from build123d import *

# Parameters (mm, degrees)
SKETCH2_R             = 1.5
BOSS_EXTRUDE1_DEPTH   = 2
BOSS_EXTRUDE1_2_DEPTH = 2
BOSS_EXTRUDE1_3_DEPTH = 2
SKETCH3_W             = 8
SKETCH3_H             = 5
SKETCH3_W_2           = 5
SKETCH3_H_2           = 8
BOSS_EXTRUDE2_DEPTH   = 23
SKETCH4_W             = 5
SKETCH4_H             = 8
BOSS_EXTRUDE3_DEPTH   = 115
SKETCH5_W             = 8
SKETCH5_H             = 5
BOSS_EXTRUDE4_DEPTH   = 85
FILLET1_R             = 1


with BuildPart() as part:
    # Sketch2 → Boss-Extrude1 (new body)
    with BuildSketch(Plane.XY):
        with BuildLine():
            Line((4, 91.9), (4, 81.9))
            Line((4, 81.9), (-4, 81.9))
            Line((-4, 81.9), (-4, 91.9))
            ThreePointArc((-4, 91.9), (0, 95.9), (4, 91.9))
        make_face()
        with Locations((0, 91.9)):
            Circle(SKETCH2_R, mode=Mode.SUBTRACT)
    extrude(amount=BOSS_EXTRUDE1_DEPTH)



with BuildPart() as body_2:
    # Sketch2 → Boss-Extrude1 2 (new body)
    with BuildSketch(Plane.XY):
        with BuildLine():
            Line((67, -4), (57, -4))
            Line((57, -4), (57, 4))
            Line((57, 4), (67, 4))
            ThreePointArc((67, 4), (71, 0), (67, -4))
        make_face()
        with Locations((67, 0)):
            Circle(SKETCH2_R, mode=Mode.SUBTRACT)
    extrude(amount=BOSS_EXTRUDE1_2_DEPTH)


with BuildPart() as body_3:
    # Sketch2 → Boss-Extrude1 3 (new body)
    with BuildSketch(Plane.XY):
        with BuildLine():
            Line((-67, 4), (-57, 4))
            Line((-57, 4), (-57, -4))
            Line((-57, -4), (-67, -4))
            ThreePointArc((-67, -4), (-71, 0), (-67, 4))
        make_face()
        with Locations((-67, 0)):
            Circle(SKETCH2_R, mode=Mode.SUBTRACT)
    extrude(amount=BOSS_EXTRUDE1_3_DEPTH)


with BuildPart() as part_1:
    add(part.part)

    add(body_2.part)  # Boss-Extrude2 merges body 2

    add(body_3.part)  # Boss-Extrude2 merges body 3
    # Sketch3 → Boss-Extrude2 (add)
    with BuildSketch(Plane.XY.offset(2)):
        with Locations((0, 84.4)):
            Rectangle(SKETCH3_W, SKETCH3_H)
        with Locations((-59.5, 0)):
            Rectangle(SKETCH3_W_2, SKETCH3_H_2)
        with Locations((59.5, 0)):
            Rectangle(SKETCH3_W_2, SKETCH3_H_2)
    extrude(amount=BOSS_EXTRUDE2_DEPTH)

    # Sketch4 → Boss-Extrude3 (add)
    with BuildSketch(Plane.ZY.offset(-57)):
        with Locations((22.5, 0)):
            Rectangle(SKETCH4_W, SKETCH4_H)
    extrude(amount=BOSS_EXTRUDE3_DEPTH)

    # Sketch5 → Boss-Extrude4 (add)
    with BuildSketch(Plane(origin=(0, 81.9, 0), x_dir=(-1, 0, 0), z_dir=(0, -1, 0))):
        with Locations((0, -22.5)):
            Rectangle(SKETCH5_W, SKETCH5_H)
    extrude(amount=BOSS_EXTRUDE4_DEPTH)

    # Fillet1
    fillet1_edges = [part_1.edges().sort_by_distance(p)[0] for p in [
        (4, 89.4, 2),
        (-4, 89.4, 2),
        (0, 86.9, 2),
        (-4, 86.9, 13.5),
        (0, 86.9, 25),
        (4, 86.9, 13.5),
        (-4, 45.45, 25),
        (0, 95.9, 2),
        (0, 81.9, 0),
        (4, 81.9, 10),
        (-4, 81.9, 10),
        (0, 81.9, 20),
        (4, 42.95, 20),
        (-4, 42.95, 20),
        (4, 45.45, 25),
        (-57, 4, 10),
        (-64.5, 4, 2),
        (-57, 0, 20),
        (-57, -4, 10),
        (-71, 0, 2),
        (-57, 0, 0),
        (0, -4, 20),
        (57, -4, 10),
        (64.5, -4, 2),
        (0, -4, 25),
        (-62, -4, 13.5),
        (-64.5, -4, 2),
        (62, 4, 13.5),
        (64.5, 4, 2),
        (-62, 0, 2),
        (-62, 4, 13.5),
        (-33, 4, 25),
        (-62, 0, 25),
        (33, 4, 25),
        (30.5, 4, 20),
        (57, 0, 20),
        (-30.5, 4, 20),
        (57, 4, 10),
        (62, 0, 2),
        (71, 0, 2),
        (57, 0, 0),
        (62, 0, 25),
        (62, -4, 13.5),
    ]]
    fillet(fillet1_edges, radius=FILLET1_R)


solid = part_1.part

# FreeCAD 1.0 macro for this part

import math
import FreeCAD as App
import Part
import Sketcher
from FreeCAD import Vector


def edges_at(feature, points):
    """Names of the edges that pass closest to the given points."""
    edges = feature.Shape.Edges
    near = lambda p: min(range(len(edges)), key=lambda i: edges[i].distToShape(Part.Vertex(*p))[0])
    return sorted({f"Edge{near(p) + 1}" for p in points})

doc = App.newDocument("Part")
body = doc.addObject("PartDesign::Body", "Body")

# Sketch on XY plane
sketch1 = body.newObject("Sketcher::SketchObject", "Sketch")
sketch1.AttachmentSupport = (doc.getObject("XY_Plane"), [""])
sketch1.MapMode = "FlatFace"
sketch1.addGeometry([
    Part.LineSegment(Vector(4, 81.9, 0), Vector(4, 91.9, 0)),  # 0
    Part.ArcOfCircle(Part.Circle(Vector(0, 91.9, 0), Vector(0, 0, 1), 4), math.radians(0), math.radians(180)),  # 1
    Part.LineSegment(Vector(-4, 91.9, 0), Vector(-4, 81.9, 0)),  # 2
    Part.LineSegment(Vector(-4, 81.9, 0), Vector(4, 81.9, 0)),  # 3
    Part.Circle(Vector(0, 91.9, 0), Vector(0, 0, 1), 1.5),  # 4
], False)
sketch1.addConstraint([
    Sketcher.Constraint("Tangent", 0, 2, 1, 1),
    Sketcher.Constraint("Tangent", 1, 2, 2, 1),
    Sketcher.Constraint("Coincident", 2, 2, 3, 1),
    Sketcher.Constraint("Coincident", 3, 2, 0, 1),
    Sketcher.Constraint("Vertical", 0),
    Sketcher.Constraint("Vertical", 2),
    Sketcher.Constraint("Horizontal", 3),
    Sketcher.Constraint("Coincident", 4, 3, 1, 3),
    Sketcher.Constraint("PointOnObject", 1, 3, -2),
    Sketcher.Constraint("Diameter", 4, 3.0),
    Sketcher.Constraint("Radius", 1, 4.0),
    Sketcher.Constraint("DistanceY", 0, 1, 0, 2, 10.0),
    Sketcher.Constraint("DistanceY", -1, 1, 1, 3, 91.9),
])
pad1 = body.newObject("PartDesign::Pad", "Pad")
pad1.Profile = sketch1
pad1.Length = 2
body2 = doc.addObject("PartDesign::Body", "Body001")

# Sketch on XY plane
sketch2 = body2.newObject("Sketcher::SketchObject", "Sketch001")
sketch2.AttachmentSupport = (doc.getObject("XY_Plane001"), [""])
sketch2.MapMode = "FlatFace"
sketch2.addGeometry([
    Part.LineSegment(Vector(57, -4, 0), Vector(67, -4, 0)),  # 0
    Part.ArcOfCircle(Part.Circle(Vector(67, 0, 0), Vector(0, 0, 1), 4), math.radians(-90), math.radians(90)),  # 1
    Part.LineSegment(Vector(67, 4, 0), Vector(57, 4, 0)),  # 2
    Part.LineSegment(Vector(57, 4, 0), Vector(57, -4, 0)),  # 3
    Part.Circle(Vector(67, 0, 0), Vector(0, 0, 1), 1.5),  # 4
], False)
sketch2.addConstraint([
    Sketcher.Constraint("Tangent", 0, 2, 1, 1),
    Sketcher.Constraint("Tangent", 1, 2, 2, 1),
    Sketcher.Constraint("Coincident", 2, 2, 3, 1),
    Sketcher.Constraint("Coincident", 3, 2, 0, 1),
    Sketcher.Constraint("Horizontal", 0),
    Sketcher.Constraint("Horizontal", 2),
    Sketcher.Constraint("Vertical", 3),
    Sketcher.Constraint("Coincident", 4, 3, 1, 3),
    Sketcher.Constraint("PointOnObject", 1, 3, -1),
    Sketcher.Constraint("Diameter", 4, 3.0),
    Sketcher.Constraint("Radius", 1, 4.0),
    Sketcher.Constraint("DistanceX", 0, 1, 0, 2, 10.0),
    Sketcher.Constraint("DistanceX", -1, 1, 1, 3, 67.0),
])
pad2 = body2.newObject("PartDesign::Pad", "Pad001")
pad2.Profile = sketch2
pad2.Length = 2
body3 = doc.addObject("PartDesign::Body", "Body002")

# Sketch on XY plane
sketch3 = body3.newObject("Sketcher::SketchObject", "Sketch002")
sketch3.AttachmentSupport = (doc.getObject("XY_Plane002"), [""])
sketch3.MapMode = "FlatFace"
sketch3.addGeometry([
    Part.LineSegment(Vector(-57, 4, 0), Vector(-67, 4, 0)),  # 0
    Part.ArcOfCircle(Part.Circle(Vector(-67, 0, 0), Vector(0, 0, 1), 4), math.radians(90), math.radians(270)),  # 1
    Part.LineSegment(Vector(-67, -4, 0), Vector(-57, -4, 0)),  # 2
    Part.LineSegment(Vector(-57, -4, 0), Vector(-57, 4, 0)),  # 3
    Part.Circle(Vector(-67, 0, 0), Vector(0, 0, 1), 1.5),  # 4
], False)
sketch3.addConstraint([
    Sketcher.Constraint("Tangent", 0, 2, 1, 1),
    Sketcher.Constraint("Tangent", 1, 2, 2, 1),
    Sketcher.Constraint("Coincident", 2, 2, 3, 1),
    Sketcher.Constraint("Coincident", 3, 2, 0, 1),
    Sketcher.Constraint("Horizontal", 0),
    Sketcher.Constraint("Horizontal", 2),
    Sketcher.Constraint("Vertical", 3),
    Sketcher.Constraint("Coincident", 4, 3, 1, 3),
    Sketcher.Constraint("PointOnObject", 1, 3, -1),
    Sketcher.Constraint("Diameter", 4, 3.0),
    Sketcher.Constraint("Radius", 1, 4.0),
    Sketcher.Constraint("DistanceX", 0, 2, 0, 1, 10.0),
    Sketcher.Constraint("DistanceX", 1, 3, -1, 1, 67.0),
])
pad3 = body3.newObject("PartDesign::Pad", "Pad002")
pad3.Profile = sketch3
pad3.Length = 2
body.AllowCompound = True
doc.recompute()

boolean = body.newObject("PartDesign::Boolean", "Boolean")
boolean.Type = "Fuse"
boolean.addObjects([body2])
doc.recompute()

boolean2 = body.newObject("PartDesign::Boolean", "Boolean001")
boolean2.Type = "Fuse"
boolean2.addObjects([body3])

# Sketch on XY plane
sketch4 = body.newObject("Sketcher::SketchObject", "Sketch003")
sketch4.AttachmentSupport = (doc.getObject("XY_Plane"), [""])
sketch4.MapMode = "FlatFace"
sketch4.AttachmentOffset = App.Placement(Vector(0, 0, 2), App.Rotation())
sketch4.addGeometry([
    Part.LineSegment(Vector(-4, 87, 0), Vector(-4, 82, 0)),  # 0
    Part.LineSegment(Vector(-4, 82, 0), Vector(4, 82, 0)),  # 1
    Part.LineSegment(Vector(4, 82, 0), Vector(4, 87, 0)),  # 2
    Part.LineSegment(Vector(4, 87, 0), Vector(-4, 87, 0)),  # 3
    Part.LineSegment(Vector(-62, 4, 0), Vector(-62, -4, 0)),  # 4
    Part.LineSegment(Vector(-62, -4, 0), Vector(-57, -4, 0)),  # 5
    Part.LineSegment(Vector(-57, -4, 0), Vector(-57, 4, 0)),  # 6
    Part.LineSegment(Vector(-57, 4, 0), Vector(-62, 4, 0)),  # 7
    Part.LineSegment(Vector(57, 4, 0), Vector(57, -4, 0)),  # 8
    Part.LineSegment(Vector(57, -4, 0), Vector(62, -4, 0)),  # 9
    Part.LineSegment(Vector(62, -4, 0), Vector(62, 4, 0)),  # 10
    Part.LineSegment(Vector(62, 4, 0), Vector(57, 4, 0)),  # 11
], False)
sketch4.addConstraint([
    Sketcher.Constraint("Coincident", 0, 2, 1, 1),
    Sketcher.Constraint("Coincident", 1, 2, 2, 1),
    Sketcher.Constraint("Coincident", 2, 2, 3, 1),
    Sketcher.Constraint("Coincident", 3, 2, 0, 1),
    Sketcher.Constraint("Coincident", 4, 2, 5, 1),
    Sketcher.Constraint("Coincident", 5, 2, 6, 1),
    Sketcher.Constraint("Coincident", 6, 2, 7, 1),
    Sketcher.Constraint("Coincident", 7, 2, 4, 1),
    Sketcher.Constraint("Coincident", 8, 2, 9, 1),
    Sketcher.Constraint("Coincident", 9, 2, 10, 1),
    Sketcher.Constraint("Coincident", 10, 2, 11, 1),
    Sketcher.Constraint("Coincident", 11, 2, 8, 1),
    Sketcher.Constraint("Vertical", 0),
    Sketcher.Constraint("Horizontal", 1),
    Sketcher.Constraint("Vertical", 2),
    Sketcher.Constraint("Horizontal", 3),
    Sketcher.Constraint("Vertical", 4),
    Sketcher.Constraint("Horizontal", 5),
    Sketcher.Constraint("Vertical", 6),
    Sketcher.Constraint("Horizontal", 7),
    Sketcher.Constraint("Vertical", 8),
    Sketcher.Constraint("Horizontal", 9),
    Sketcher.Constraint("Vertical", 10),
    Sketcher.Constraint("Horizontal", 11),
    Sketcher.Constraint("Symmetric", 6, 2, 8, 2, -1, 1),
    Sketcher.Constraint("Symmetric", 4, 2, 10, 2, -1, 1),
    Sketcher.Constraint("Horizontal", 5, 2, 8, 2),
    Sketcher.Constraint("Equal", 11, 0),
    Sketcher.Constraint("Equal", 3, 4),
    Sketcher.Constraint("DistanceX", 1, 1, 1, 2, 8.0),
    Sketcher.Constraint("DistanceX", 5, 1, 5, 2, 5.0),
    Sketcher.Constraint("DistanceX", 0, 2, -1, 1, 4.0),
    Sketcher.Constraint("DistanceX", 4, 2, -1, 1, 62.0),
    Sketcher.Constraint("DistanceY", -1, 1, 0, 2, 81.9),
])
pad4 = body.newObject("PartDesign::Pad", "Pad003")
pad4.Profile = sketch4
pad4.Length = 23

# Sketch on YZ plane
sketch5 = body.newObject("Sketcher::SketchObject", "Sketch004")
sketch5.AttachmentSupport = (doc.getObject("YZ_Plane"), [""])
sketch5.MapMode = "FlatFace"
sketch5.AttachmentOffset = App.Placement(Vector(0, 0, 57), App.Rotation())
sketch5.addGeometry([
    Part.LineSegment(Vector(4, 20, 0), Vector(-4, 20, 0)),
    Part.LineSegment(Vector(-4, 20, 0), Vector(-4, 25, 0)),
    Part.LineSegment(Vector(-4, 25, 0), Vector(4, 25, 0)),
    Part.LineSegment(Vector(4, 25, 0), Vector(4, 20, 0)),
], False)
sketch5.addConstraint([
    Sketcher.Constraint("Coincident", 0, 2, 1, 1),
    Sketcher.Constraint("Coincident", 1, 2, 2, 1),
    Sketcher.Constraint("Coincident", 2, 2, 3, 1),
    Sketcher.Constraint("Coincident", 3, 2, 0, 1),
    Sketcher.Constraint("Horizontal", 0),
    Sketcher.Constraint("Vertical", 1),
    Sketcher.Constraint("Horizontal", 2),
    Sketcher.Constraint("Vertical", 3),
    Sketcher.Constraint("DistanceX", 0, 2, 0, 1, 8.0),
    Sketcher.Constraint("DistanceY", 1, 1, 1, 2, 5.0),
    Sketcher.Constraint("DistanceX", 0, 2, -1, 1, 4.0),
    Sketcher.Constraint("DistanceY", -1, 1, 0, 2, 20.0),
])
pad5 = body.newObject("PartDesign::Pad", "Pad004")
pad5.Profile = sketch5
pad5.Length = 115
pad5.Reversed = True

# Sketch on XZ plane
sketch6 = body.newObject("Sketcher::SketchObject", "Sketch005")
sketch6.AttachmentSupport = (doc.getObject("XZ_Plane"), [""])
sketch6.MapMode = "FlatFace"
sketch6.AttachmentOffset = App.Placement(Vector(0, 0, -81.9), App.Rotation())
sketch6.addGeometry([
    Part.LineSegment(Vector(4, 20, 0), Vector(4, 25, 0)),
    Part.LineSegment(Vector(4, 25, 0), Vector(-4, 25, 0)),
    Part.LineSegment(Vector(-4, 25, 0), Vector(-4, 20, 0)),
    Part.LineSegment(Vector(-4, 20, 0), Vector(4, 20, 0)),
], False)
sketch6.addConstraint([
    Sketcher.Constraint("Coincident", 0, 2, 1, 1),
    Sketcher.Constraint("Coincident", 1, 2, 2, 1),
    Sketcher.Constraint("Coincident", 2, 2, 3, 1),
    Sketcher.Constraint("Coincident", 3, 2, 0, 1),
    Sketcher.Constraint("Vertical", 0),
    Sketcher.Constraint("Horizontal", 1),
    Sketcher.Constraint("Vertical", 2),
    Sketcher.Constraint("Horizontal", 3),
    Sketcher.Constraint("DistanceX", 1, 2, 1, 1, 8.0),
    Sketcher.Constraint("DistanceY", 0, 1, 0, 2, 5.0),
    Sketcher.Constraint("DistanceX", -1, 1, 0, 2, 4.0),
    Sketcher.Constraint("DistanceY", -1, 1, 0, 2, 25.0),
])
pad6 = body.newObject("PartDesign::Pad", "Pad005")
pad6.Profile = sketch6
pad6.Length = 85
doc.recompute()

fillet = body.newObject("PartDesign::Fillet", "Fillet")
fillet.Base = (pad6, edges_at(pad6, [
    (4, 89.4, 2),
    (-4, 89.4, 2),
    (0, 86.9, 2),
    (-4, 86.9, 13.5),
    (0, 86.9, 25),
    (4, 86.9, 13.5),
    (-4, 45.45, 25),
    (0, 95.9, 2),
    (0, 81.9, 0),
    (4, 81.9, 10),
    (-4, 81.9, 10),
    (0, 81.9, 20),
    (4, 42.95, 20),
    (-4, 42.95, 20),
    (4, 45.45, 25),
    (-57, 4, 10),
    (-64.5, 4, 2),
    (-57, 0, 20),
    (-57, -4, 10),
    (-71, 0, 2),
    (-57, 0, 0),
    (0, -4, 20),
    (57, -4, 10),
    (64.5, -4, 2),
    (0, -4, 25),
    (-62, -4, 13.5),
    (-64.5, -4, 2),
    (62, 4, 13.5),
    (64.5, 4, 2),
    (-62, 0, 2),
    (-62, 4, 13.5),
    (-33, 4, 25),
    (-62, 0, 25),
    (33, 4, 25),
    (30.5, 4, 20),
    (57, 0, 20),
    (-30.5, 4, 20),
    (57, 4, 10),
    (62, 0, 2),
    (71, 0, 2),
    (57, 0, 0),
    (62, 0, 25),
    (62, -4, 13.5),
]))
fillet.Radius = 1

doc.recompute()
